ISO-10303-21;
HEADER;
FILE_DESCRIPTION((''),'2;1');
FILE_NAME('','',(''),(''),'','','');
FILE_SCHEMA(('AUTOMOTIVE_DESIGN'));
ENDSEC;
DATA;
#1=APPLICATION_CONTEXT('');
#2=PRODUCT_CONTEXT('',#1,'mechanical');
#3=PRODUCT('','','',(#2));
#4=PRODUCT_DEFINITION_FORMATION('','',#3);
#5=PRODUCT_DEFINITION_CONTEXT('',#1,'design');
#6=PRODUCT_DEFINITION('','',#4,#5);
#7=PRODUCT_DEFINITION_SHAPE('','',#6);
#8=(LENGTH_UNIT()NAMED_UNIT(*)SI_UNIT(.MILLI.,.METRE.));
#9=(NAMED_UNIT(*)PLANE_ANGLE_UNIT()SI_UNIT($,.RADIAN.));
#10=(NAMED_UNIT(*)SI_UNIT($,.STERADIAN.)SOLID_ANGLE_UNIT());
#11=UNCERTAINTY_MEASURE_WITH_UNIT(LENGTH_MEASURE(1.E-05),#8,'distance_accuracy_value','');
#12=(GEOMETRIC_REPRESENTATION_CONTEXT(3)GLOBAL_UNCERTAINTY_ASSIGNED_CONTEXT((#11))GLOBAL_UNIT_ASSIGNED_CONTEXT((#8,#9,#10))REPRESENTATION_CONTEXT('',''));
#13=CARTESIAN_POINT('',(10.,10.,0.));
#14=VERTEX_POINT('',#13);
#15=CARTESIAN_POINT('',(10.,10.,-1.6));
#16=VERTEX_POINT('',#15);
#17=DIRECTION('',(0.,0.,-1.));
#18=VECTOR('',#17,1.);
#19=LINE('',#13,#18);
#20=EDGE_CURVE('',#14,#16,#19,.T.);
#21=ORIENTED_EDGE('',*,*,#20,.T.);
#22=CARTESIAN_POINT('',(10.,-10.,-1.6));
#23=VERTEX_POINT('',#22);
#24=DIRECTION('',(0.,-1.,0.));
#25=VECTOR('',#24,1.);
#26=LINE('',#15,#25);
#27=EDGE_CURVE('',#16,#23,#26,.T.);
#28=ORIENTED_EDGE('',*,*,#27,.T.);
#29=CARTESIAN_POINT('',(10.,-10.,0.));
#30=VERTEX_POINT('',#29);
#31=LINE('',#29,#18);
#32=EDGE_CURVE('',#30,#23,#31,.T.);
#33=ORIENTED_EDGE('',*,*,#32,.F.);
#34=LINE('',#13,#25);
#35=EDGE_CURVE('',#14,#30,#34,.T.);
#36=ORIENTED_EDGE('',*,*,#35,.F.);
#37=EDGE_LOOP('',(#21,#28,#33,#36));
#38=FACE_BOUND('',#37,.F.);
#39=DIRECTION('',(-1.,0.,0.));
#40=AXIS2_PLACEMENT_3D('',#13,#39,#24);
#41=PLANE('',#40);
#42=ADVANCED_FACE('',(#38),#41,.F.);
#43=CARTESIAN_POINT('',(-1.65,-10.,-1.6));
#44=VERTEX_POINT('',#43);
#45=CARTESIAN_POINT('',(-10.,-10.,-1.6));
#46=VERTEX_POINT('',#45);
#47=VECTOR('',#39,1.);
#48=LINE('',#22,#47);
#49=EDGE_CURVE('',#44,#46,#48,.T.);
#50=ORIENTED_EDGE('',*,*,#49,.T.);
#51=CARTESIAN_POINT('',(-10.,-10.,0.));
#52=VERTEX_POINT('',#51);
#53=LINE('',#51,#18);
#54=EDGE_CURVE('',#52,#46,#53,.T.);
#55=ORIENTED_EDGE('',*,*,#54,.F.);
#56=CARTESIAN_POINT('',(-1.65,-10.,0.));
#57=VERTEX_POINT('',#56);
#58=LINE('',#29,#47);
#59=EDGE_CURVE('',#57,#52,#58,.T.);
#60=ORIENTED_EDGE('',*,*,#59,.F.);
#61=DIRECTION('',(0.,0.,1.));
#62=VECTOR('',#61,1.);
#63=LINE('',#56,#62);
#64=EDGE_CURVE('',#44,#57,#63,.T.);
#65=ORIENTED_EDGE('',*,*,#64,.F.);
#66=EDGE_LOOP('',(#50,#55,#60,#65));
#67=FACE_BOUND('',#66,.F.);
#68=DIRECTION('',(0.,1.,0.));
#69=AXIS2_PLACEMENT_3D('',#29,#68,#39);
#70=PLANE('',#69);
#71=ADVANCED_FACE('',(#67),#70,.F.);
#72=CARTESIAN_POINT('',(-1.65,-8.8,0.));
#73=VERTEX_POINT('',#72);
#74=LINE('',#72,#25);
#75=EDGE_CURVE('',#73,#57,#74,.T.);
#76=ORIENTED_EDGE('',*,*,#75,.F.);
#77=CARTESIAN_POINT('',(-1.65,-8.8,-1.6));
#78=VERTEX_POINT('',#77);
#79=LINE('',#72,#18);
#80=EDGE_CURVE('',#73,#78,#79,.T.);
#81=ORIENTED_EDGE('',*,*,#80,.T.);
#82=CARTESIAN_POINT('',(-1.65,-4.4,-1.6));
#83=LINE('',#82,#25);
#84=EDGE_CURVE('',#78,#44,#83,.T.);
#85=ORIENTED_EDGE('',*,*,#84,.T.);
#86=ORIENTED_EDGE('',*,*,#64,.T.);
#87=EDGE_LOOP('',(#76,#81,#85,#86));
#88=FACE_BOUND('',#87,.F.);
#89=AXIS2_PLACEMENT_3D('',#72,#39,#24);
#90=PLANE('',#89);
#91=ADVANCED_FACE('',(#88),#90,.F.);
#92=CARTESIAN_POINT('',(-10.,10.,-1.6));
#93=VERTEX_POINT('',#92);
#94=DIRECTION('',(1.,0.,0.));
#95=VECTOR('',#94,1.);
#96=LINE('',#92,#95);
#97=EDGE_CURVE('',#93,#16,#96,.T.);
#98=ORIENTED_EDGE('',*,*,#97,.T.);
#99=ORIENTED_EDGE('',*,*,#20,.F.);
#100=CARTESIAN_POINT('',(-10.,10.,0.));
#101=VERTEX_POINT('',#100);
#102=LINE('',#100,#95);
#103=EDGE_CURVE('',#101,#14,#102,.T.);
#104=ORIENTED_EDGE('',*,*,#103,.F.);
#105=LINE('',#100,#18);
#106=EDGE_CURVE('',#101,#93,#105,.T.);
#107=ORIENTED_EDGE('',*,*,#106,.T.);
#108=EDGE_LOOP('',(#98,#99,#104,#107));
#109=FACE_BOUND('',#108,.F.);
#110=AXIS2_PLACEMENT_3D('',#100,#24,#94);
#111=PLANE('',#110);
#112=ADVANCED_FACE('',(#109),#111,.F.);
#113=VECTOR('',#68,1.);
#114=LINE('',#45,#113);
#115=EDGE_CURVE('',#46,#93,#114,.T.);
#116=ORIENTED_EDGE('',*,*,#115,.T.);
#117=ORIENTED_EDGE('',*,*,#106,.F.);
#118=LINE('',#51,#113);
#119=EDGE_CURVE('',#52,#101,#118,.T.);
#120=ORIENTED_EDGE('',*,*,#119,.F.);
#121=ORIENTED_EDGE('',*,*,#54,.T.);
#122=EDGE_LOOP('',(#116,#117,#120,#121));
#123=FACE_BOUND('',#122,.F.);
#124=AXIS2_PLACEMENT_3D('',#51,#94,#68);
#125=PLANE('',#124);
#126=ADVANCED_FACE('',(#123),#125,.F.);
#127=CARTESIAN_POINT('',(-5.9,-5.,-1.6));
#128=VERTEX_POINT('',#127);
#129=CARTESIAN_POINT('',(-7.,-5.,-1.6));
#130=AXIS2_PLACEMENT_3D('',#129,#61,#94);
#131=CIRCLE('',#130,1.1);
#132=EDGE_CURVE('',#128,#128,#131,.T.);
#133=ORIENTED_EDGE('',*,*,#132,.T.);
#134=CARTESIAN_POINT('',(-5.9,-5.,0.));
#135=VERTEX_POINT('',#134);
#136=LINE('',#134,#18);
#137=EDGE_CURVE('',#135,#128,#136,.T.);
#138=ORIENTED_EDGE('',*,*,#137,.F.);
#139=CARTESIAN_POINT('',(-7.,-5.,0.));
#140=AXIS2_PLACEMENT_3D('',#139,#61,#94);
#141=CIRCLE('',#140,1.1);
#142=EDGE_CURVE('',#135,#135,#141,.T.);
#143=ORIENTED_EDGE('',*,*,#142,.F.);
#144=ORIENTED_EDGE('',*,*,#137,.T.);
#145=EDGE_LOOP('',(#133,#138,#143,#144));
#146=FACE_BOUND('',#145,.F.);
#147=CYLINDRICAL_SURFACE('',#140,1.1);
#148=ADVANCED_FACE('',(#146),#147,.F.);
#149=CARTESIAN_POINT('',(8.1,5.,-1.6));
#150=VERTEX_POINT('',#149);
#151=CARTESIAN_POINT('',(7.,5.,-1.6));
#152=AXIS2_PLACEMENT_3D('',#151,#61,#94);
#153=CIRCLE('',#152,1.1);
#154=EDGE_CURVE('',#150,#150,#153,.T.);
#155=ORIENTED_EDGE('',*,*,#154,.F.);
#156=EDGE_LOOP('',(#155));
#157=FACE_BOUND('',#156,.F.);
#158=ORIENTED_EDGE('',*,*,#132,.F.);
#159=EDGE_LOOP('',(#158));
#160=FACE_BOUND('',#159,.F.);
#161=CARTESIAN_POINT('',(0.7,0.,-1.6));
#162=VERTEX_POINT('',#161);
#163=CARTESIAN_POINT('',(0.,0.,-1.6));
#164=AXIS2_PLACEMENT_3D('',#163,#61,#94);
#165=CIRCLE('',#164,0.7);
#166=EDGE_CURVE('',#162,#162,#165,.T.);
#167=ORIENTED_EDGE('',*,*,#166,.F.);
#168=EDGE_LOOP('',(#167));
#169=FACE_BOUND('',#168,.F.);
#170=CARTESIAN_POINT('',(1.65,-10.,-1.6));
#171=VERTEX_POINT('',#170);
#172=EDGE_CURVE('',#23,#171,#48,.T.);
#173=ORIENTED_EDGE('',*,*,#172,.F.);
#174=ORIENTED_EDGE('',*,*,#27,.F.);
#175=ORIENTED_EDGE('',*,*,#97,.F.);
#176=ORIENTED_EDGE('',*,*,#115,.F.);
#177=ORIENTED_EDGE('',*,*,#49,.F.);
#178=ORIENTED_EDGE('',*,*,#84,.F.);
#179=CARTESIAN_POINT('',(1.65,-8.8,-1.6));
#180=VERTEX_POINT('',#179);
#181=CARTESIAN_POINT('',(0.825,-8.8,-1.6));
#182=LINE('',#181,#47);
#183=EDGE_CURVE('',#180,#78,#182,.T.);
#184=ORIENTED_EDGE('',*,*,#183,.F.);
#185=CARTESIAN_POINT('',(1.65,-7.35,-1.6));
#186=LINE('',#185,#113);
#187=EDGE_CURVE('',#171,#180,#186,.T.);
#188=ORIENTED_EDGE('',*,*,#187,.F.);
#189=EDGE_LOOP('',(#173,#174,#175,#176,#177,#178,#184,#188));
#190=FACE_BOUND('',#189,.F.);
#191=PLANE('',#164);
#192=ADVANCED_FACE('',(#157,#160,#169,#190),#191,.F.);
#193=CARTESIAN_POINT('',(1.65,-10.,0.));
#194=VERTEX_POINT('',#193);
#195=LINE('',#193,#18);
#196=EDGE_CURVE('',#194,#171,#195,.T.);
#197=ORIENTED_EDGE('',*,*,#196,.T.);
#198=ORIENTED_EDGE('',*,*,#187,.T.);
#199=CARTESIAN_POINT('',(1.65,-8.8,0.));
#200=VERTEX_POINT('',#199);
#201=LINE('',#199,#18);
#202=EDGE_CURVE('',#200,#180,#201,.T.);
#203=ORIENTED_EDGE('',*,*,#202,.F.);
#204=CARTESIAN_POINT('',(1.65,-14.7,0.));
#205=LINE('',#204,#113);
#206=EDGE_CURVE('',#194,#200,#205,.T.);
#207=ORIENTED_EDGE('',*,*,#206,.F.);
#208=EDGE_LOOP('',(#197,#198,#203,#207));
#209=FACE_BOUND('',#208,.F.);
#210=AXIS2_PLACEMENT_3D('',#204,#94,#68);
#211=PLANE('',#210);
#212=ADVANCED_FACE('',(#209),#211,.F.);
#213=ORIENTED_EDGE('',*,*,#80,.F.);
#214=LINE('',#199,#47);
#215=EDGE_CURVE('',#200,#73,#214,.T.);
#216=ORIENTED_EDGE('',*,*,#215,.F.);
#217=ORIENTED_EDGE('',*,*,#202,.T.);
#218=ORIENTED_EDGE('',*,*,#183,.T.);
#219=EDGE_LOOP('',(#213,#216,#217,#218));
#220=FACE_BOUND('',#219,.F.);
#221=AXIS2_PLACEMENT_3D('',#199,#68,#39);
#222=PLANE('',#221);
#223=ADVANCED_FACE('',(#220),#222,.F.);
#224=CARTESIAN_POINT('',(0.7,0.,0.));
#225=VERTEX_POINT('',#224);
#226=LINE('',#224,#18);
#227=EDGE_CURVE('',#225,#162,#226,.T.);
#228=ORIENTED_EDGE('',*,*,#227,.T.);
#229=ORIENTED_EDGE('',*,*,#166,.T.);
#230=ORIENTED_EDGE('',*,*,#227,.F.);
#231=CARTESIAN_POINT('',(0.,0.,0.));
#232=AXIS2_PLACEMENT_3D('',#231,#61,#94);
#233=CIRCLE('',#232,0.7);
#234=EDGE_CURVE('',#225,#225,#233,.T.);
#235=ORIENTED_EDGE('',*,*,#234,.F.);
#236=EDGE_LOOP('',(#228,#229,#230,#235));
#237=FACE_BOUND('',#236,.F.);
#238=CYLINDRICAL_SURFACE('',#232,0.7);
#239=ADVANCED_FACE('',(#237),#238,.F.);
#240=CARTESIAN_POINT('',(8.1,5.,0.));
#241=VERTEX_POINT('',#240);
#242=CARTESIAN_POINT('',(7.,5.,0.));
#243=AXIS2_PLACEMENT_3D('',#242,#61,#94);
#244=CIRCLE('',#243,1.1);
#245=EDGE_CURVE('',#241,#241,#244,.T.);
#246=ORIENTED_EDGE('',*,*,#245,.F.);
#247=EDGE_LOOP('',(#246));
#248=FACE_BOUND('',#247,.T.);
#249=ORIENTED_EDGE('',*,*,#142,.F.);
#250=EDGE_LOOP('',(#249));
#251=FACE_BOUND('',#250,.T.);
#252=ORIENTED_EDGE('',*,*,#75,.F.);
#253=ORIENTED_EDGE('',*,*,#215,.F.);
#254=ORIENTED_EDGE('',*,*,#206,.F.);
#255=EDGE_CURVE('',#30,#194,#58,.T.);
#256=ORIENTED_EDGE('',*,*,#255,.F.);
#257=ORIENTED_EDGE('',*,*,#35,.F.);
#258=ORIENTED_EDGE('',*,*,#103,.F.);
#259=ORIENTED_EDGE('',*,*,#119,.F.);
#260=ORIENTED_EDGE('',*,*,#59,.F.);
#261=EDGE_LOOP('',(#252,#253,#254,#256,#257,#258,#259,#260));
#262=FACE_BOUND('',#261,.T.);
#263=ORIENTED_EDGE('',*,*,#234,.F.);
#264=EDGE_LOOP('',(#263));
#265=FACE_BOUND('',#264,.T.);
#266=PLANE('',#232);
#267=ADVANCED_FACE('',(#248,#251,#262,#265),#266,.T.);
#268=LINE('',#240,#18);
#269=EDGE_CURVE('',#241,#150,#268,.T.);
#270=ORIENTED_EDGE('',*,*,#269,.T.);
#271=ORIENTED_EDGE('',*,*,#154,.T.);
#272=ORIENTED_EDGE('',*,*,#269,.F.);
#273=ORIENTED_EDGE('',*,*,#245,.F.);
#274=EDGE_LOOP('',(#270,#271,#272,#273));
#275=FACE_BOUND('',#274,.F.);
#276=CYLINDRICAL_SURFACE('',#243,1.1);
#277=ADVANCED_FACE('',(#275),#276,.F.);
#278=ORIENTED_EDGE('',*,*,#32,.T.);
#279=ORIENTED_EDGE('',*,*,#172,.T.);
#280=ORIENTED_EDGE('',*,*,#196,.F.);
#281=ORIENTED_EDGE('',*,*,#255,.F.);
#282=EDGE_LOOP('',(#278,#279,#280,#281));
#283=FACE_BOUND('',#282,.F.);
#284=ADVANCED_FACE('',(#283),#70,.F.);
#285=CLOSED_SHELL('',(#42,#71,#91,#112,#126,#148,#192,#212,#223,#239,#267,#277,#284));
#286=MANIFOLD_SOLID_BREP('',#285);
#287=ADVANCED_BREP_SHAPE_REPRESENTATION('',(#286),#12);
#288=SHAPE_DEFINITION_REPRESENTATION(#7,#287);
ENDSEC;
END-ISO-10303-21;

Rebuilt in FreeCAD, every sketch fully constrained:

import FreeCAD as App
import Part
import Sketcher

doc = App.newDocument("Part")
body = doc.addObject("PartDesign::Body", "Body")

# Sketch on XY plane
sketch1 = body.newObject("Sketcher::SketchObject", "Sketch")
sketch1.AttachmentSupport = (doc.getObject("XY_Plane"), [""])
sketch1.MapMode = "FlatFace"
sketch1.addGeometry([
    Part.LineSegment(App.Vector(10, 10, 0), App.Vector(-10, 10, 0)),
    Part.LineSegment(App.Vector(-10, 10, 0), App.Vector(-10, -10, 0)),
    Part.LineSegment(App.Vector(-10, -10, 0), App.Vector(10, -10, 0)),
    Part.LineSegment(App.Vector(10, -10, 0), App.Vector(10, 10, 0)),
], False)
sketch1.addConstraint([
    Sketcher.Constraint("Coincident", 0, 2, 1, 1),
    Sketcher.Constraint("Coincident", 1, 2, 2, 1),
    Sketcher.Constraint("Coincident", 2, 2, 3, 1),
    Sketcher.Constraint("Coincident", 3, 2, 0, 1),
    Sketcher.Constraint("Horizontal", 0),
    Sketcher.Constraint("Vertical", 1),
    Sketcher.Constraint("Horizontal", 2),
    Sketcher.Constraint("Vertical", 3),
    Sketcher.Constraint("Symmetric", 0, 2, 2, 2, -1, 1),
    Sketcher.Constraint("Equal", 2, 1),
    Sketcher.Constraint("DistanceX", 0, 2, 0, 1, 20.0),
])
pad1 = body.newObject("PartDesign::Pad", "Pad")
pad1.Profile = sketch1
pad1.Length = 1.6
pad1.Reversed = True

# Sketch on XY plane
sketch2 = body.newObject("Sketcher::SketchObject", "Sketch001")
sketch2.AttachmentSupport = (doc.getObject("XY_Plane"), [""])
sketch2.MapMode = "FlatFace"
sketch2.addGeometry([
    Part.Circle(App.Vector(-7, -5, 0), App.Vector(0, 0, 1), 1.1),
    Part.Circle(App.Vector(7, 5, 0), App.Vector(0, 0, 1), 1.1),
], False)
sketch2.addConstraint([
    Sketcher.Constraint("Equal", 0, 1),
    Sketcher.Constraint("Symmetric", 0, 3, 1, 3, -1, 1),
    Sketcher.Constraint("Diameter", 0, 2.2),
    Sketcher.Constraint("DistanceX", 0, 3, -1, 1, 7.0),
    Sketcher.Constraint("DistanceY", 0, 3, -1, 1, 5.0),
])
pocket1 = body.newObject("PartDesign::Pocket", "Pocket")
pocket1.Profile = sketch2
pocket1.Length = 20
pocket1.Midplane = True

# Sketch on XY plane
sketch3 = body.newObject("Sketcher::SketchObject", "Sketch002")
sketch3.AttachmentSupport = (doc.getObject("XY_Plane"), [""])
sketch3.MapMode = "FlatFace"
sketch3.addGeometry([
    Part.Circle(App.Vector(0, 0, 0), App.Vector(0, 0, 1), 0.7),  # 0
    Part.LineSegment(App.Vector(1.6, -14.7, 0), App.Vector(1.6, -8.8, 0)),  # 1
    Part.LineSegment(App.Vector(1.6, -8.8, 0), App.Vector(-1.6, -8.8, 0)),  # 2
    Part.LineSegment(App.Vector(-1.6, -8.8, 0), App.Vector(-1.6, -14.7, 0)),  # 3
    Part.LineSegment(App.Vector(-1.6, -14.7, 0), App.Vector(1.6, -14.7, 0)),  # 4
], False)
sketch3.addConstraint([
    Sketcher.Constraint("Coincident", 1, 2, 2, 1),
    Sketcher.Constraint("Coincident", 2, 2, 3, 1),
    Sketcher.Constraint("Coincident", 3, 2, 4, 1),
    Sketcher.Constraint("Coincident", 4, 2, 1, 1),
    Sketcher.Constraint("Vertical", 1),
    Sketcher.Constraint("Horizontal", 2),
    Sketcher.Constraint("Vertical", 3),
    Sketcher.Constraint("Horizontal", 4),
    Sketcher.Constraint("Coincident", 0, 3, -1, 1),
    Sketcher.Constraint("Diameter", 0, 1.4),
    Sketcher.Constraint("DistanceX", 2, 2, 2, 1, 3.3),
    Sketcher.Constraint("DistanceY", 1, 2, -1, 1, 8.8),
    Sketcher.Constraint("DistanceX", -1, 1, 1, 2, 1.65),
    Sketcher.Constraint("DistanceY", 1, 1, 1, 2, 5.9),
])
pocket2 = body.newObject("PartDesign::Pocket", "Pocket001")
pocket2.Profile = sketch3
pocket2.Length = 20

doc.recompute()
